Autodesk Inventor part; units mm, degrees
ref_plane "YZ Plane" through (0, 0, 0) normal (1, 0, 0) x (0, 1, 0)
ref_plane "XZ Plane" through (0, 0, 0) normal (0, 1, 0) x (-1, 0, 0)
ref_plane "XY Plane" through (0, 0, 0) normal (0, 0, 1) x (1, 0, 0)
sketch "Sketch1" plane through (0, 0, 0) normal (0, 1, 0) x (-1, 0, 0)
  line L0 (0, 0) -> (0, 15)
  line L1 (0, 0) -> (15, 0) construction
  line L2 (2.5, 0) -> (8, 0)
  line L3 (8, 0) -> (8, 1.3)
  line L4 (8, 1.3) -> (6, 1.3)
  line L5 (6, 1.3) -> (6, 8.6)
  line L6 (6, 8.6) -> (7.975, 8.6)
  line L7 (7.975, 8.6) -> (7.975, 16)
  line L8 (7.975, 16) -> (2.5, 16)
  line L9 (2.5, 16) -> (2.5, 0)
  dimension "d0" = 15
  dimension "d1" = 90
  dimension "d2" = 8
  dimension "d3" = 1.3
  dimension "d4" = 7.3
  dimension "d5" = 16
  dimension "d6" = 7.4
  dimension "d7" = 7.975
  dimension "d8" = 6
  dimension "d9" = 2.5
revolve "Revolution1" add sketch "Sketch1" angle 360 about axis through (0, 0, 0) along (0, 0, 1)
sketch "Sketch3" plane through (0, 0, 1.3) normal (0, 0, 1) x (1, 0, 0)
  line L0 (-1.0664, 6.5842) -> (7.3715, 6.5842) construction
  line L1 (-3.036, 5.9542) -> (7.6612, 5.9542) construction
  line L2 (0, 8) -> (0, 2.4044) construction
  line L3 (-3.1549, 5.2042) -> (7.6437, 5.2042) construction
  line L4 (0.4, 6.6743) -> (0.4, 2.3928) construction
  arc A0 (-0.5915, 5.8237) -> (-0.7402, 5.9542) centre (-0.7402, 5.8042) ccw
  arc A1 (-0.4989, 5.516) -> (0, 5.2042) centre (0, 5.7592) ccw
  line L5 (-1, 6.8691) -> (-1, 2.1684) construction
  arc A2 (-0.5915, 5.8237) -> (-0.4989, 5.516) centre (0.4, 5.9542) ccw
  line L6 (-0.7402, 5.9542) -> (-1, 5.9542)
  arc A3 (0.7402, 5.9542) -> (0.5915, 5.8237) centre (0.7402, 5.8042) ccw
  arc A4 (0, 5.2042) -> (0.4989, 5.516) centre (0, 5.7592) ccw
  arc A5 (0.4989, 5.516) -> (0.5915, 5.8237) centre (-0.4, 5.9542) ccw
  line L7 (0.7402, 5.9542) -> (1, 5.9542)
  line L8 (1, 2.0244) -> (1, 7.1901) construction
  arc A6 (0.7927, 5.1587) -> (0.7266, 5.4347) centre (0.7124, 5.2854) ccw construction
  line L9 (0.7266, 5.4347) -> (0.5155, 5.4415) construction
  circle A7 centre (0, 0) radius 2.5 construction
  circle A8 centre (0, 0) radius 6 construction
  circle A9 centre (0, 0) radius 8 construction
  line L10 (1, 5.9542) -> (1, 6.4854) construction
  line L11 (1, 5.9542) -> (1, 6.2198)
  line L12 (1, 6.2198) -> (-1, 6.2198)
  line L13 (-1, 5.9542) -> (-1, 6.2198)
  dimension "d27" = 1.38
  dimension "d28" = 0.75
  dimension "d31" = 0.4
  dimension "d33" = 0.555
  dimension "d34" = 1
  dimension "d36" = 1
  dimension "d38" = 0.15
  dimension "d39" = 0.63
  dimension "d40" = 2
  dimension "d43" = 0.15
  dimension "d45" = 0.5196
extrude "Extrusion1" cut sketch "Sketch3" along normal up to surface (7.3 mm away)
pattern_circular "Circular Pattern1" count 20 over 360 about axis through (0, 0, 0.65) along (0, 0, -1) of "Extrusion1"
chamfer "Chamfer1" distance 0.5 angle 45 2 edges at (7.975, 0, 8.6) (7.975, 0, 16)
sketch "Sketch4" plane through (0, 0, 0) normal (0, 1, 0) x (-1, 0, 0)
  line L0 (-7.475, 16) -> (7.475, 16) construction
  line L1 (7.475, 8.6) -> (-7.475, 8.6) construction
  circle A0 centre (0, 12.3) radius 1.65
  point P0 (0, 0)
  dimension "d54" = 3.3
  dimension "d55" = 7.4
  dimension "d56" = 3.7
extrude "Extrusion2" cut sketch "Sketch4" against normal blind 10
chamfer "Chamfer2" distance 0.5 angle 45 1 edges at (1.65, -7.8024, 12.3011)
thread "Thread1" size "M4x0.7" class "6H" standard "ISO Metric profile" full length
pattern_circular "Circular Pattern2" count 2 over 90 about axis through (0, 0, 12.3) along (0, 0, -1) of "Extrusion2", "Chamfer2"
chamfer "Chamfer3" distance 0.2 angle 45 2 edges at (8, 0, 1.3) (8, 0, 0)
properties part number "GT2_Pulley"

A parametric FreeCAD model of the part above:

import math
import FreeCAD as App
import Part
import Sketcher
Q = App.Units.Quantity


def edges_at(feature, points):
    """Names of the edges that pass closest to the given points."""
    edges = feature.Shape.Edges
    near = lambda p: min(range(len(edges)), key=lambda i: edges[i].distToShape(Part.Vertex(*p))[0])
    return sorted({f"Edge{near(p) + 1}" for p in points})


def add_polygon(sketch, points):
    """Adds a closed chain of lines whose ends are joined by coincident constraints."""
    first, n = sketch.GeometryCount, len(points)
    for a, b in zip(points, points[1:] + points[:1]):
        sketch.addGeometry(Part.LineSegment(App.Vector(*a, 0), App.Vector(*b, 0)), False)
    for i in range(n):
        sketch.addConstraint(Sketcher.Constraint("Coincident", first + i, 2, first + (i + 1) % n, 1))

doc = App.newDocument("Part")
body = doc.addObject("PartDesign::Body", "Body")

# Sketch on XZ plane
sketch1 = doc.addObject("Sketcher::SketchObject", "Sketch")
body.addObject(sketch1)
sketch1.AttachmentSupport = (doc.XZ_Plane, [""])
sketch1.MapMode = "FlatFace"
add_polygon(sketch1, [(-2.5, 16), (-2.5, 0), (-8, 0), (-8, 1.3), (-6, 1.3), (-6, 8.6), (-8, 8.6), (-8, 16)])  # lines 0-7
sketch1.addConstraint(Sketcher.Constraint("Vertical", 0))
sketch1.addConstraint(Sketcher.Constraint("Horizontal", 1))
sketch1.addConstraint(Sketcher.Constraint("Vertical", 2))
sketch1.addConstraint(Sketcher.Constraint("Horizontal", 3))
sketch1.addConstraint(Sketcher.Constraint("Vertical", 4))
sketch1.addConstraint(Sketcher.Constraint("Horizontal", 5))
sketch1.addConstraint(Sketcher.Constraint("Vertical", 6))
sketch1.addConstraint(Sketcher.Constraint("Horizontal", 7))
sketch1.addConstraint(Sketcher.Constraint("PointOnObject", 0, 2, -1))
sketch1.addConstraint(Sketcher.Constraint("DistanceY", 0, 2, 0, 1, Q("16 mm")))
sketch1.addConstraint(Sketcher.Constraint("DistanceY", 2, 1, 2, 2, Q("1.3 mm")))
sketch1.addConstraint(Sketcher.Constraint("DistanceY", 4, 1, 4, 2, Q("7.3 mm")))
sketch1.addConstraint(Sketcher.Constraint("DistanceX", 1, 2, -1, 1, Q("8 mm")))
sketch1.addConstraint(Sketcher.Constraint("DistanceX", 3, 2, -1, 1, Q("6 mm")))
sketch1.addConstraint(Sketcher.Constraint("DistanceX", 0, 2, -1, 1, Q("2.5 mm")))
sketch1.addConstraint(Sketcher.Constraint("DistanceX", 5, 2, -1, 1, Q("7.975 mm")))
revolution = doc.addObject("PartDesign::Revolution", "Revolution")
body.addObject(revolution)
revolution.Profile = sketch1
revolution.ReferenceAxis = (sketch1, ["V_Axis"])
revolution.Angle = 360

# Sketch on XY plane
sketch2 = doc.addObject("Sketcher::SketchObject", "Sketch001")
body.addObject(sketch2)
sketch2.AttachmentSupport = (doc.XY_Plane, [""])
sketch2.MapMode = "FlatFace"
sketch2.AttachmentOffset = App.Placement(App.Vector(0, 0, 1.3), App.Rotation())
sketch2.addGeometry(Part.ArcOfCircle(Part.Circle(App.Vector(-0.7402, 5.8042, 0), App.Vector(0, 0, 1), 0.149973), math.radians(7.470938), math.radians(90)), False)
sketch2.addGeometry(Part.ArcOfCircle(Part.Circle(App.Vector(0.39883, 5.953949, 0), App.Vector(0, 0, 1), 0.998859), math.radians(-172.507432), math.radians(-153.995023)), False)
sketch2.addGeometry(Part.ArcOfCircle(Part.Circle(App.Vector(0, 5.7592, 0), App.Vector(0, 0, 1), 0.555), math.radians(-154.012042), math.radians(-90)), False)
sketch2.addGeometry(Part.ArcOfCircle(Part.Circle(App.Vector(0, 5.7592, 0), App.Vector(0, 0, 1), 0.55502), math.radians(-90), math.radians(-25.987958)), False)
sketch2.addGeometry(Part.ArcOfCircle(Part.Circle(App.Vector(-0.401117, 5.954637, 0), App.Vector(0, 0, 1), 1.001216), math.radians(-25.982994), math.radians(-7.514551)), False)
sketch2.addGeometry(Part.ArcOfCircle(Part.Circle(App.Vector(0.7402, 5.8042, 0), App.Vector(0, 0, 1), 0.15), math.radians(90), math.radians(172.529062)), False)
sketch2.addGeometry(Part.LineSegment(App.Vector(0.7402, 5.9542, 0), App.Vector(1, 5.9542, 0)), False)
sketch2.addGeometry(Part.LineSegment(App.Vector(1, 5.9542, 0), App.Vector(1, 6.2198, 0)), False)
sketch2.addGeometry(Part.LineSegment(App.Vector(1, 6.2198, 0), App.Vector(-1, 6.2198, 0)), False)
sketch2.addGeometry(Part.LineSegment(App.Vector(-1, 6.2198, 0), App.Vector(-1, 5.9542, 0)), False)
sketch2.addGeometry(Part.LineSegment(App.Vector(-1, 5.9542, 0), App.Vector(-0.7402, 5.9542, 0)), False)
sketch2.addConstraint(Sketcher.Constraint("Coincident", 0, 1, 1, 1))
sketch2.addConstraint(Sketcher.Constraint("Coincident", 1, 2, 2, 1))
sketch2.addConstraint(Sketcher.Constraint("Coincident", 2, 2, 3, 1))
sketch2.addConstraint(Sketcher.Constraint("Coincident", 3, 2, 4, 1))
sketch2.addConstraint(Sketcher.Constraint("Coincident", 4, 2, 5, 2))
sketch2.addConstraint(Sketcher.Constraint("Coincident", 5, 1, 6, 1))
sketch2.addConstraint(Sketcher.Constraint("Coincident", 6, 2, 7, 1))
sketch2.addConstraint(Sketcher.Constraint("Coincident", 7, 2, 8, 1))
sketch2.addConstraint(Sketcher.Constraint("Coincident", 8, 2, 9, 1))
sketch2.addConstraint(Sketcher.Constraint("Coincident", 9, 2, 10, 1))
sketch2.addConstraint(Sketcher.Constraint("Coincident", 10, 2, 0, 2))
sketch2.addConstraint(Sketcher.Constraint("Horizontal", 6))
sketch2.addConstraint(Sketcher.Constraint("Vertical", 7))
sketch2.addConstraint(Sketcher.Constraint("Horizontal", 8))
sketch2.addConstraint(Sketcher.Constraint("Vertical", 9))
sketch2.addConstraint(Sketcher.Constraint("Horizontal", 10))
sketch2.addConstraint(Sketcher.Constraint("Coincident", 3, 3, 2, 3))
sketch2.addConstraint(Sketcher.Constraint("PointOnObject", 2, 3, -2))
sketch2.addConstraint(Sketcher.Constraint("PointOnObject", 2, 2, -2))
sketch2.addConstraint(Sketcher.Constraint("DistanceX", 8, 2, 8, 1, Q("2 mm")))
sketch2.addConstraint(Sketcher.Constraint("Radius", 0, Q("0.15 mm")))
sketch2.addConstraint(Sketcher.Constraint("Radius", 5, Q("0.15 mm")))
sketch2.addConstraint(Sketcher.Constraint("DistanceX", -1, 1, 6, 2, Q("1 mm")))
sketch2.addConstraint(Sketcher.Constraint("Radius", 2, Q("0.555 mm")))
sketch2.addConstraint(Sketcher.Constraint("Radius", 1, Q("0.9989 mm")))
sketch2.addConstraint(Sketcher.Constraint("Radius", 4, Q("1.0012 mm")))
sketch2.addConstraint(Sketcher.Constraint("DistanceY", 0, 3, 1, 3, Q("0.1497 mm")))
sketch2.addConstraint(Sketcher.Constraint("DistanceY", 0, 3, 4, 3, Q("0.1504 mm")))
sketch2.addConstraint(Sketcher.Constraint("DistanceX", 4, 3, 1, 3, Q("0.8 mm")))
sketch2.addConstraint(Sketcher.Constraint("DistanceY", 5, 3, 1, 3, Q("0.1497 mm")))
sketch2.addConstraint(Sketcher.Constraint("DistanceX", 1, 3, 3, 2, Q("0.1 mm")))
sketch2.addConstraint(Sketcher.Constraint("DistanceX", 6, 1, 6, 2, Q("0.2598 mm")))
sketch2.addConstraint(Sketcher.Constraint("DistanceX", 10, 1, 10, 2, Q("0.2598 mm")))
sketch2.addConstraint(Sketcher.Constraint("DistanceY", 7, 1, 7, 2, Q("0.2656 mm")))
sketch2.addConstraint(Sketcher.Constraint("DistanceY", -1, 1, 1, 3, Q("5.954 mm")))
sketch2.addConstraint(Sketcher.Constraint("DistanceX", 1, 2, -1, 1, Q("0.499 mm")))
sketch2.addConstraint(Sketcher.Constraint("DistanceY", 0, 1, 4, 3, Q("0.131 mm")))
sketch2.addConstraint(Sketcher.Constraint("DistanceY", 4, 2, 7, 2, Q("0.396 mm")))
pocket1 = doc.addObject("PartDesign::Pocket", "Pocket")
body.addObject(pocket1)
pocket1.Profile = sketch2
pocket1.Length = 7.3
pocket1.Reversed = True
doc.recompute()

polarpattern = doc.addObject("PartDesign::PolarPattern", "PolarPattern")
body.addObject(polarpattern)
polarpattern.Originals = [pocket1]
polarpattern.Axis = (doc.Z_Axis, [""])
polarpattern.Angle = 360
polarpattern.Occurrences = 20
body.Tip = polarpattern
doc.recompute()

chamfer = doc.addObject("PartDesign::Chamfer", "Chamfer")
body.addObject(chamfer)
chamfer.Base = (polarpattern, edges_at(polarpattern, [(7.975, 0, 8.6), (7.975, 0, 16)]))
chamfer.Size = 0.5

# Sketch on XZ plane
sketch3 = doc.addObject("Sketcher::SketchObject", "Sketch002")
body.addObject(sketch3)
sketch3.AttachmentSupport = (doc.XZ_Plane, [""])
sketch3.MapMode = "FlatFace"
sketch3.addGeometry(Part.Circle(App.Vector(0, 12.3, 0), App.Vector(0, 0, 1), 1.6), False)
sketch3.addConstraint(Sketcher.Constraint("PointOnObject", 0, 3, -2))
sketch3.addConstraint(Sketcher.Constraint("Diameter", 0, Q("3.3 mm")))
sketch3.addConstraint(Sketcher.Constraint("DistanceY", -1, 1, 0, 3, Q("12.3 mm")))
pocket2 = doc.addObject("PartDesign::Pocket", "Pocket001")
body.addObject(pocket2)
pocket2.Profile = sketch3
pocket2.Length = 10
pocket2.Reversed = True
doc.recompute()

chamfer2 = doc.addObject("PartDesign::Chamfer", "Chamfer001")
body.addObject(chamfer2)
chamfer2.Base = (pocket2, edges_at(pocket2, [(1.65, -7.802, 12.301)]))
chamfer2.Size = 0.5
doc.recompute()

polarpattern2 = doc.addObject("PartDesign::PolarPattern", "PolarPattern001")
body.addObject(polarpattern2)
polarpattern2.Originals = [pocket2, chamfer2]
polarpattern2.Axis = (doc.Z_Axis, [""])
polarpattern2.Angle = 90
polarpattern2.Occurrences = 2
polarpattern2.Reversed = True
body.Tip = polarpattern2
doc.recompute()

chamfer3 = doc.addObject("PartDesign::Chamfer", "Chamfer002")
body.addObject(chamfer3)
chamfer3.Base = (polarpattern2, edges_at(polarpattern2, [(8, 0, 1.3), (8, 0, 0)]))
chamfer3.Size = 0.2

doc.recompute()
